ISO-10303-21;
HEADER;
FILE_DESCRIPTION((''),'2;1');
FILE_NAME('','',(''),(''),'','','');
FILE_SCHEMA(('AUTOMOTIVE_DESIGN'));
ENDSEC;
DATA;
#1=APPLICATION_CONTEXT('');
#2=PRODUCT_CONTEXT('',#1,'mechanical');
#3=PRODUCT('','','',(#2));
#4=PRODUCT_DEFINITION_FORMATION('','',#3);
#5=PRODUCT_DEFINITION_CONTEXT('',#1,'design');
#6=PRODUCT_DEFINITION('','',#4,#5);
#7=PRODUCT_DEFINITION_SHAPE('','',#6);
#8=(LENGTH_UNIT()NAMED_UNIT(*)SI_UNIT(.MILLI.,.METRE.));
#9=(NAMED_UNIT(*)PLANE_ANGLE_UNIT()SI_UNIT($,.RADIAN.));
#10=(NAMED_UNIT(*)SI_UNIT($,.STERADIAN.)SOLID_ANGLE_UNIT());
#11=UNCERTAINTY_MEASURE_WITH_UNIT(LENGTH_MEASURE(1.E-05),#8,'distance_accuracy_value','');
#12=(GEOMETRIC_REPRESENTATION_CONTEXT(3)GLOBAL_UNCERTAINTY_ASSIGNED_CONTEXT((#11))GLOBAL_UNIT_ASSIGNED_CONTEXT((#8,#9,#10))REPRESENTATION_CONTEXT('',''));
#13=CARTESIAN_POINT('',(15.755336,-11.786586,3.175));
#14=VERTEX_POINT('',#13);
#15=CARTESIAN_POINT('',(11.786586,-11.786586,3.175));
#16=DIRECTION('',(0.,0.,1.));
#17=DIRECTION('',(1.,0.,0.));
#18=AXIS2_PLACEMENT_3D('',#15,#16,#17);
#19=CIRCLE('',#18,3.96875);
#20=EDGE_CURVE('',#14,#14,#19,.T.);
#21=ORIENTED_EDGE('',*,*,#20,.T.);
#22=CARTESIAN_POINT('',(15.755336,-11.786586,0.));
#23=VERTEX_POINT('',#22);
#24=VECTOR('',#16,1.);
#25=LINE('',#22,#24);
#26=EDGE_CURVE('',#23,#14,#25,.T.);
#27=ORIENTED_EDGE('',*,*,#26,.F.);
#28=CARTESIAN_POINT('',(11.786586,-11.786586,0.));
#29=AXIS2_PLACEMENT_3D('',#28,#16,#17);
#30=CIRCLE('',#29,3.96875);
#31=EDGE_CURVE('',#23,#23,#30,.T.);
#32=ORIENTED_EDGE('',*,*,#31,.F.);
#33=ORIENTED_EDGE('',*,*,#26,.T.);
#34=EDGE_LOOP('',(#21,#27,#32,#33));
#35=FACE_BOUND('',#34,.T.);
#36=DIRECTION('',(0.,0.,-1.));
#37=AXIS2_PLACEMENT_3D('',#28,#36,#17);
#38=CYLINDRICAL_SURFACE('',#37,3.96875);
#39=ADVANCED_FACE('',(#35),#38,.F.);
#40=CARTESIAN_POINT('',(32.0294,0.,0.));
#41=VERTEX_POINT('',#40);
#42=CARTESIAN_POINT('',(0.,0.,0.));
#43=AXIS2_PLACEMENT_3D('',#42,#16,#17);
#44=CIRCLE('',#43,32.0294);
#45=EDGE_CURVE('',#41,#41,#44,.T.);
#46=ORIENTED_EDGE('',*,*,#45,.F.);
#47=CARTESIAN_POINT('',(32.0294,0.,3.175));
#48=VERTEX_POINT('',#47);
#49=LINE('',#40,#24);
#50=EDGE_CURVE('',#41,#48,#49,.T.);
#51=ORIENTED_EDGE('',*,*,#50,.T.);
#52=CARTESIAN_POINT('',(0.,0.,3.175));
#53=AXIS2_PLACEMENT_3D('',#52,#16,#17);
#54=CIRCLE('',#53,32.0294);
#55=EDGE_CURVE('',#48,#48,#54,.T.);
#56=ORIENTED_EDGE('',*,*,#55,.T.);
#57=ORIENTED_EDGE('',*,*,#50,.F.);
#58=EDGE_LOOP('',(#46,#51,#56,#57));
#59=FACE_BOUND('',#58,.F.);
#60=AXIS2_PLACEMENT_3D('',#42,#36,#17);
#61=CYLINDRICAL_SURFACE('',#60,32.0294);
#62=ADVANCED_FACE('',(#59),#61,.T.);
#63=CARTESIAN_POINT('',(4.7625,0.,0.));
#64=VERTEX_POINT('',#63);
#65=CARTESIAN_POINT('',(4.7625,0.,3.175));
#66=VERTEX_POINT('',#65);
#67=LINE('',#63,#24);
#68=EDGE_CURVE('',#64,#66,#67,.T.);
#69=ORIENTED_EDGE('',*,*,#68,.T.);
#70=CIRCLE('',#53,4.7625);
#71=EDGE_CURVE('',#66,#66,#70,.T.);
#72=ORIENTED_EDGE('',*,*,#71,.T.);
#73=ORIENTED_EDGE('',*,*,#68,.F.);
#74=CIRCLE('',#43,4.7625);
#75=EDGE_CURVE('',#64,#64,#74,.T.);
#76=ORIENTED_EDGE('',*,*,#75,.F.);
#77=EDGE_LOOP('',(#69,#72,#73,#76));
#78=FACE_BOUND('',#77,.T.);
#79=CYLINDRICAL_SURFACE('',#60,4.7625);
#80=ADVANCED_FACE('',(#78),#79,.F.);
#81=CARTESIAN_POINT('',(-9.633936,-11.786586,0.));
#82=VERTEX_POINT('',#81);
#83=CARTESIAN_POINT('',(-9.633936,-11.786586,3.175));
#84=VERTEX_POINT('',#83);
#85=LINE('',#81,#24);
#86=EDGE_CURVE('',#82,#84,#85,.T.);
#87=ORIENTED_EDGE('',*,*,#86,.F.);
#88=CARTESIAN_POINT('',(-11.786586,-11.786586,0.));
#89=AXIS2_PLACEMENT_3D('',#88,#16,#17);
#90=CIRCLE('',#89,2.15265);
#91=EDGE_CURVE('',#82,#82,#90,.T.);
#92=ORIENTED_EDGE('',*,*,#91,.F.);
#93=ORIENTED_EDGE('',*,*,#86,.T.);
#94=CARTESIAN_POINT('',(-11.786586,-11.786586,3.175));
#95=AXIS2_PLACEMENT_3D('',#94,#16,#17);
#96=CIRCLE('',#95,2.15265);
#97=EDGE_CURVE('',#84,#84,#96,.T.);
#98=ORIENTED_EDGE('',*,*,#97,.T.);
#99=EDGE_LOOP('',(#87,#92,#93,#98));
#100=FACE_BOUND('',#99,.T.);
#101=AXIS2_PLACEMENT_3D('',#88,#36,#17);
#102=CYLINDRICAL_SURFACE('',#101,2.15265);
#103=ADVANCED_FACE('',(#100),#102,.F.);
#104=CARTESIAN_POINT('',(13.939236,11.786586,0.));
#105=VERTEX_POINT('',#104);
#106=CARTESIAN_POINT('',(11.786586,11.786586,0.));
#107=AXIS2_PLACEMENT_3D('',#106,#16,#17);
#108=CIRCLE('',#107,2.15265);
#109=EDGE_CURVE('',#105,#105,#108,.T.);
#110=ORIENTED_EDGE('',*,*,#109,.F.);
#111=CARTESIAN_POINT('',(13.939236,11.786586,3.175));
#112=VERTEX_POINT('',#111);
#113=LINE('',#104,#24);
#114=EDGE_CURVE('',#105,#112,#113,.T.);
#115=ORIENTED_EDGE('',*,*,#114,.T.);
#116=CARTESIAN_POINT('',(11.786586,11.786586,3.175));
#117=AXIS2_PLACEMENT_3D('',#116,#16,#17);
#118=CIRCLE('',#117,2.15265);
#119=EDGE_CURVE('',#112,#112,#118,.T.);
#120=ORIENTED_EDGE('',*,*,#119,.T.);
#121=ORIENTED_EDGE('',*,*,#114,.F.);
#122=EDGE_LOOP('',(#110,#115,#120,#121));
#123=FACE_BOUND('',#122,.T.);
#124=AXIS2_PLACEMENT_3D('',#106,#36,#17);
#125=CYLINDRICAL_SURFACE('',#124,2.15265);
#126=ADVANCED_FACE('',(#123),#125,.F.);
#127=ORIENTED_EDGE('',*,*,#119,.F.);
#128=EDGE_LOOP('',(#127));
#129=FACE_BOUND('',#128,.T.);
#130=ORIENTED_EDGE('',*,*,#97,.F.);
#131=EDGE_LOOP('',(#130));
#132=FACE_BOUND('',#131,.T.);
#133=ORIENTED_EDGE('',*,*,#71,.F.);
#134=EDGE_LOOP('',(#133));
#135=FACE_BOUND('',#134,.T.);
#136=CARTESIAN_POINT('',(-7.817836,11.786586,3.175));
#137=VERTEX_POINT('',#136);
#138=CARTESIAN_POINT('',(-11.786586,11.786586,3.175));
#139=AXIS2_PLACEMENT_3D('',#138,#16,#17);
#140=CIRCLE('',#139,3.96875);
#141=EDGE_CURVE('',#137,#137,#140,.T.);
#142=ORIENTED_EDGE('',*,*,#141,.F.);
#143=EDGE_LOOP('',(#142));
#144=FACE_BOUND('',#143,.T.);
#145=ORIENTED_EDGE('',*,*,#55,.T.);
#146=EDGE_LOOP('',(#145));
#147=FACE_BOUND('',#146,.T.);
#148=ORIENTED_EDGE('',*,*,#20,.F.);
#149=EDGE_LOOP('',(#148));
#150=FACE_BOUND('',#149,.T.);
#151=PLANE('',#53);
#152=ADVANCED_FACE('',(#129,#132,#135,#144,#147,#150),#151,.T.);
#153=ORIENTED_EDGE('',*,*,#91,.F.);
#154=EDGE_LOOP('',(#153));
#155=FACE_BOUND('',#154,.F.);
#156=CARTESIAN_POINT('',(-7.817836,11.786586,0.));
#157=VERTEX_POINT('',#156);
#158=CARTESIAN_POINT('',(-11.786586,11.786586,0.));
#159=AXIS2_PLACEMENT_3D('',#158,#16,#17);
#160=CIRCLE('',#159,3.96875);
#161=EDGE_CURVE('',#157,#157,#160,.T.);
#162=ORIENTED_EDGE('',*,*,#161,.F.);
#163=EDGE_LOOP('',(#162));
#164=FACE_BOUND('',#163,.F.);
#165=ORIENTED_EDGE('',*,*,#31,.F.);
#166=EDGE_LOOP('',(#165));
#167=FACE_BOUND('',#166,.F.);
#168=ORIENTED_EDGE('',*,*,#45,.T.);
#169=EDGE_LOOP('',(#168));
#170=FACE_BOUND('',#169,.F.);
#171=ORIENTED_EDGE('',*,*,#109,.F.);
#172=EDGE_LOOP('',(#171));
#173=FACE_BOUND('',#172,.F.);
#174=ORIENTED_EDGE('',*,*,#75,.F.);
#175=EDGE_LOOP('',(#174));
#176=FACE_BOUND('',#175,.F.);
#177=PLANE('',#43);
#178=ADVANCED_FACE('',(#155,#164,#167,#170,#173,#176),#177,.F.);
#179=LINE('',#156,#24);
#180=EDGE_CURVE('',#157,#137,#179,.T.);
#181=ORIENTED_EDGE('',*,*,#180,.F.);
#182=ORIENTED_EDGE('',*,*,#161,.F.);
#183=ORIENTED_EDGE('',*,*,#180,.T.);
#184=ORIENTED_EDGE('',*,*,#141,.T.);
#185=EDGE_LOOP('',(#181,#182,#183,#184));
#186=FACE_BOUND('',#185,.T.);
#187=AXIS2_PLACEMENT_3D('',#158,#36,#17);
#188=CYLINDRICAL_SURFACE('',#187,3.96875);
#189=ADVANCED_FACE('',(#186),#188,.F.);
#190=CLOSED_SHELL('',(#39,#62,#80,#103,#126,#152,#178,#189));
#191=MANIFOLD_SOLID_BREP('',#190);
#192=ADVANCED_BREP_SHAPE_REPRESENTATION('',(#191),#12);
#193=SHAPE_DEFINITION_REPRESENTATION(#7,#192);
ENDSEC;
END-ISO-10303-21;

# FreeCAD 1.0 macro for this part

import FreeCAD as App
import Part
import Sketcher
Q = App.Units.Quantity

doc = App.newDocument("Part")
body = doc.addObject("PartDesign::Body", "Body")

# Sketch on XY plane
sketch1 = body.newObject("Sketcher::SketchObject", "Sketch")
sketch1.AttachmentSupport = (doc.getObject("XY_Plane"), [""])
sketch1.MapMode = "FlatFace"
sketch1.addGeometry(Part.Circle(App.Vector(0, 0, 0), App.Vector(0, 0, 1), 32), False)
sketch1.addGeometry(Part.Circle(App.Vector(-11.8, -11.8, 0), App.Vector(0, 0, 1), 2.2), False)
sketch1.addGeometry(Part.Circle(App.Vector(11.8, -11.8, 0), App.Vector(0, 0, 1), 4), False)
sketch1.addGeometry(Part.Circle(App.Vector(-11.8, 11.8, 0), App.Vector(0, 0, 1), 4), False)
sketch1.addGeometry(Part.Circle(App.Vector(0, 0, 0), App.Vector(0, 0, 1), 4.8), False)
sketch1.addGeometry(Part.Circle(App.Vector(11.8, 11.8, 0), App.Vector(0, 0, 1), 2.2), False)
sketch1.addConstraint(Sketcher.Constraint("Coincident", 0, 3, -1, 1))
sketch1.addConstraint(Sketcher.Constraint("Coincident", 4, 3, -1, 1))
sketch1.addConstraint(Sketcher.Constraint("Equal", 2, 3))
sketch1.addConstraint(Sketcher.Constraint("Equal", 1, 5))
sketch1.addConstraint(Sketcher.Constraint("Symmetric", 2, 3, 3, 3, -1, 1))
sketch1.addConstraint(Sketcher.Constraint("Symmetric", 1, 3, 5, 3, -1, 1))
sketch1.addConstraint(Sketcher.Constraint("Symmetric", 1, 3, 2, 3, -2))
sketch1.addConstraint(Sketcher.Constraint("Diameter", 0, Q("2.522 in")))
sketch1.addConstraint(Sketcher.Constraint("Diameter", 2, Q("0.3125 in")))
sketch1.addConstraint(Sketcher.Constraint("Diameter", 4, Q("0.375 in")))
sketch1.addConstraint(Sketcher.Constraint("Diameter", 1, Q("0.1695 in")))
sketch1.addConstraint(Sketcher.Constraint("DistanceX", 1, 3, 2, 3, Q("23.573172 mm")))
sketch1.addConstraint(Sketcher.Constraint("DistanceY", 1, 3, 3, 3, Q("23.573172 mm")))
pad1 = body.newObject("PartDesign::Pad", "Pad")
pad1.Profile = sketch1
pad1.Length = Q("0.125 in")

doc.recompute()
